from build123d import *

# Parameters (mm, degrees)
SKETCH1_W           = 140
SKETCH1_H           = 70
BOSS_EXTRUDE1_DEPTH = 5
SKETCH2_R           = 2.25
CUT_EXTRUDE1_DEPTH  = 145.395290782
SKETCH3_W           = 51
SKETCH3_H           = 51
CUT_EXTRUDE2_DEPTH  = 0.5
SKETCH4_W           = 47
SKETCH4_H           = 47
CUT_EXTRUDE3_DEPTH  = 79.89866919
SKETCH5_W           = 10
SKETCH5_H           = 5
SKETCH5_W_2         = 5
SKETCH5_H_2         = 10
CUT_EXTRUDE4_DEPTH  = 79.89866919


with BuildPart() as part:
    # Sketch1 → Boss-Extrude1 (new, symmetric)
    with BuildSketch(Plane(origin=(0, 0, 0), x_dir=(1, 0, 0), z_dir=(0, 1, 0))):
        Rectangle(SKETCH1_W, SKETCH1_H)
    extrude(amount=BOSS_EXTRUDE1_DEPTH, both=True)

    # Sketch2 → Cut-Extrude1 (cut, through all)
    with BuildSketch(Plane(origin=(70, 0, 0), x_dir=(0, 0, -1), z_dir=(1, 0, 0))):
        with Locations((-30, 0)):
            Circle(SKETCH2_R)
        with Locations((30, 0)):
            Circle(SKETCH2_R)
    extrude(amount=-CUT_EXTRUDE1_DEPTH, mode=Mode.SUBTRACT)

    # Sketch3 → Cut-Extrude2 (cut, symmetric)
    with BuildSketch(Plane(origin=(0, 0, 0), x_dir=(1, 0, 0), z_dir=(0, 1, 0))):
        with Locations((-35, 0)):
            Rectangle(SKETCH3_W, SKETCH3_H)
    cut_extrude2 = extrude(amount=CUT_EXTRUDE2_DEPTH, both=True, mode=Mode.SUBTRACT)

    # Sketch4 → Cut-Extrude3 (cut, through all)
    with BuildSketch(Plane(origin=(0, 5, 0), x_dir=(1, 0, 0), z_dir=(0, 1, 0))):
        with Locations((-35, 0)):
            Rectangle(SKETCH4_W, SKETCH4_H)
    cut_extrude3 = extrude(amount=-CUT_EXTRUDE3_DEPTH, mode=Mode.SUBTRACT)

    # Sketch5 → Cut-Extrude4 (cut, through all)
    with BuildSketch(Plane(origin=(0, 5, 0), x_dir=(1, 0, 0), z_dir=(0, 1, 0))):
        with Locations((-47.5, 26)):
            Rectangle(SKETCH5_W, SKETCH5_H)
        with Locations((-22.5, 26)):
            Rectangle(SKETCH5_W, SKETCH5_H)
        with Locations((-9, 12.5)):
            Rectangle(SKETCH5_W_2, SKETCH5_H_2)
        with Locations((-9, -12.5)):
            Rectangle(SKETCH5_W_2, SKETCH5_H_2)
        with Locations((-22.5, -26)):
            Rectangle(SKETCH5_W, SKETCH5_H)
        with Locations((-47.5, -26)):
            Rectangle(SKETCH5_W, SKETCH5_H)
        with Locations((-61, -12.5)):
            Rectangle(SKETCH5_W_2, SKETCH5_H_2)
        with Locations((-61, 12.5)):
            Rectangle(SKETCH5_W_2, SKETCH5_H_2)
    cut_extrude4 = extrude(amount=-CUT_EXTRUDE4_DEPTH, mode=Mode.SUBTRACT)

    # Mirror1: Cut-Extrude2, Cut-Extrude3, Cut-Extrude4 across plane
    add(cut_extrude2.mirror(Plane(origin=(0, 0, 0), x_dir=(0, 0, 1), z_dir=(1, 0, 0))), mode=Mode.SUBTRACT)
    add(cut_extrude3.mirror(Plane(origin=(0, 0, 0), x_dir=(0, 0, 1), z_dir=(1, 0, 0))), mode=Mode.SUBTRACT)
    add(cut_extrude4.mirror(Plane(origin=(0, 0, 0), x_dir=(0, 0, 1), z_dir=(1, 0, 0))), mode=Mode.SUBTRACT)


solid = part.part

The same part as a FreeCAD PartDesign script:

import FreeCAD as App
import Part
import Sketcher
from FreeCAD import Vector

doc = App.newDocument("Part")
body = doc.addObject("PartDesign::Body", "Body")

sketch1 = doc.addObject("Sketcher::SketchObject", "Sketch")
body.addObject(sketch1)
sketch1.AttachmentSupport = (doc.XZ_Plane, [""])
sketch1.MapMode = "FlatFace"
sketch1.addGeometry([
    Part.LineSegment(Vector(-70, -35, 0), Vector(-70, 35, 0)),
    Part.LineSegment(Vector(-70, 35, 0), Vector(70, 35, 0)),
    Part.LineSegment(Vector(70, 35, 0), Vector(70, -35, 0)),
    Part.LineSegment(Vector(70, -35, 0), Vector(-70, -35, 0)),
], False)
sketch1.addConstraint([
    Sketcher.Constraint("Coincident", 0, 2, 1, 1),
    Sketcher.Constraint("Coincident", 1, 2, 2, 1),
    Sketcher.Constraint("Coincident", 2, 2, 3, 1),
    Sketcher.Constraint("Coincident", 3, 2, 0, 1),
    Sketcher.Constraint("Vertical", 0),
    Sketcher.Constraint("Horizontal", 1),
    Sketcher.Constraint("Vertical", 2),
    Sketcher.Constraint("Horizontal", 3),
    Sketcher.Constraint("Symmetric", 0, 2, 2, 2, -1, 1),
    Sketcher.Constraint("DistanceX", 1, 1, 1, 2, 140.0),
    Sketcher.Constraint("DistanceY", 0, 1, 0, 2, 70.0),
])
pad1 = doc.addObject("PartDesign::Pad", "Pad")
body.addObject(pad1)
pad1.Profile = sketch1
pad1.Length = 10
pad1.Midplane = True

sketch2 = doc.addObject("Sketcher::SketchObject", "Sketch001")
body.addObject(sketch2)
sketch2.AttachmentSupport = (doc.YZ_Plane, [""])
sketch2.MapMode = "FlatFace"
sketch2.AttachmentOffset = App.Placement(Vector(0, 0, 70), App.Rotation())
sketch2.addGeometry([
    Part.Circle(Vector(0, 30, 0), Vector(0, 0, 1), 2.25),
    Part.Circle(Vector(0, -30, 0), Vector(0, 0, 1), 2.25),
], False)
sketch2.addConstraint([
    Sketcher.Constraint("Equal", 0, 1),
    Sketcher.Constraint("Symmetric", 0, 3, 1, 3, -1, 1),
    Sketcher.Constraint("PointOnObject", 0, 3, -2),
    Sketcher.Constraint("Diameter", 0, 4.5),
    Sketcher.Constraint("DistanceY", -1, 1, 0, 3, 30.0),
])
pocket1 = doc.addObject("PartDesign::Pocket", "Pocket")
body.addObject(pocket1)
pocket1.Profile = sketch2
pocket1.Type = "ThroughAll"

sketch3 = doc.addObject("Sketcher::SketchObject", "Sketch002")
body.addObject(sketch3)
sketch3.AttachmentSupport = (doc.XZ_Plane, [""])
sketch3.MapMode = "FlatFace"
sketch3.addGeometry([
    Part.LineSegment(Vector(-60.5, -25.5, 0), Vector(-60.5, 25.5, 0)),
    Part.LineSegment(Vector(-60.5, 25.5, 0), Vector(-9.5, 25.5, 0)),
    Part.LineSegment(Vector(-9.5, 25.5, 0), Vector(-9.5, -25.5, 0)),
    Part.LineSegment(Vector(-9.5, -25.5, 0), Vector(-60.5, -25.5, 0)),
], False)
sketch3.addConstraint([
    Sketcher.Constraint("Coincident", 0, 2, 1, 1),
    Sketcher.Constraint("Coincident", 1, 2, 2, 1),
    Sketcher.Constraint("Coincident", 2, 2, 3, 1),
    Sketcher.Constraint("Coincident", 3, 2, 0, 1),
    Sketcher.Constraint("Vertical", 0),
    Sketcher.Constraint("Horizontal", 1),
    Sketcher.Constraint("Vertical", 2),
    Sketcher.Constraint("Horizontal", 3),
    Sketcher.Constraint("Equal", 3, 0),
    Sketcher.Constraint("DistanceX", 1, 1, 1, 2, 51.0),
    Sketcher.Constraint("DistanceX", 0, 2, -1, 1, 60.5),
    Sketcher.Constraint("DistanceY", -1, 1, 0, 2, 25.5),
])
pocket2 = doc.addObject("PartDesign::Pocket", "Pocket001")
body.addObject(pocket2)
pocket2.Profile = sketch3
pocket2.Length = 1
pocket2.Midplane = True

sketch4 = doc.addObject("Sketcher::SketchObject", "Sketch003")
body.addObject(sketch4)
sketch4.AttachmentSupport = (doc.XZ_Plane, [""])
sketch4.MapMode = "FlatFace"
sketch4.AttachmentOffset = App.Placement(Vector(0, 0, -5), App.Rotation())
sketch4.addGeometry([
    Part.LineSegment(Vector(-58.5, -23.5, 0), Vector(-58.5, 23.5, 0)),
    Part.LineSegment(Vector(-58.5, 23.5, 0), Vector(-11.5, 23.5, 0)),
    Part.LineSegment(Vector(-11.5, 23.5, 0), Vector(-11.5, -23.5, 0)),
    Part.LineSegment(Vector(-11.5, -23.5, 0), Vector(-58.5, -23.5, 0)),
], False)
sketch4.addConstraint([
    Sketcher.Constraint("Coincident", 0, 2, 1, 1),
    Sketcher.Constraint("Coincident", 1, 2, 2, 1),
    Sketcher.Constraint("Coincident", 2, 2, 3, 1),
    Sketcher.Constraint("Coincident", 3, 2, 0, 1),
    Sketcher.Constraint("Vertical", 0),
    Sketcher.Constraint("Horizontal", 1),
    Sketcher.Constraint("Vertical", 2),
    Sketcher.Constraint("Horizontal", 3),
    Sketcher.Constraint("Equal", 3, 0),
    Sketcher.Constraint("DistanceX", 1, 1, 1, 2, 47.0),
    Sketcher.Constraint("DistanceX", 0, 2, -1, 1, 58.5),
    Sketcher.Constraint("DistanceY", -1, 1, 0, 2, 23.5),
])
pocket3 = doc.addObject("PartDesign::Pocket", "Pocket002")
body.addObject(pocket3)
pocket3.Profile = sketch4
pocket3.Type = "ThroughAll"
pocket3.Reversed = True

sketch5 = doc.addObject("Sketcher::SketchObject", "Sketch004")
body.addObject(sketch5)
sketch5.AttachmentSupport = (doc.XZ_Plane, [""])
sketch5.MapMode = "FlatFace"
sketch5.AttachmentOffset = App.Placement(Vector(0, 0, -5), App.Rotation())
sketch5.addGeometry([
    Part.LineSegment(Vector(-52.5, -28.5, 0), Vector(-52.5, -23.5, 0)),
    Part.LineSegment(Vector(-52.5, -23.5, 0), Vector(-42.5, -23.5, 0)),
    Part.LineSegment(Vector(-42.5, -23.5, 0), Vector(-42.5, -28.5, 0)),
    Part.LineSegment(Vector(-42.5, -28.5, 0), Vector(-52.5, -28.5, 0)),
    Part.LineSegment(Vector(-27.5, -28.5, 0), Vector(-27.5, -23.5, 0)),
    Part.LineSegment(Vector(-27.5, -23.5, 0), Vector(-17.5, -23.5, 0)),
    Part.LineSegment(Vector(-17.5, -23.5, 0), Vector(-17.5, -28.5, 0)),
    Part.LineSegment(Vector(-17.5, -28.5, 0), Vector(-27.5, -28.5, 0)),
    Part.LineSegment(Vector(-11.5, -17.5, 0), Vector(-11.5, -7.5, 0)),
    Part.LineSegment(Vector(-11.5, -7.5, 0), Vector(-6.5, -7.5, 0)),
    Part.LineSegment(Vector(-6.5, -7.5, 0), Vector(-6.5, -17.5, 0)),
    Part.LineSegment(Vector(-6.5, -17.5, 0), Vector(-11.5, -17.5, 0)),
    Part.LineSegment(Vector(-11.5, 7.5, 0), Vector(-11.5, 17.5, 0)),
    Part.LineSegment(Vector(-11.5, 17.5, 0), Vector(-6.5, 17.5, 0)),
    Part.LineSegment(Vector(-6.5, 17.5, 0), Vector(-6.5, 7.5, 0)),
    Part.LineSegment(Vector(-6.5, 7.5, 0), Vector(-11.5, 7.5, 0)),
    Part.LineSegment(Vector(-27.5, 23.5, 0), Vector(-27.5, 28.5, 0)),
    Part.LineSegment(Vector(-27.5, 28.5, 0), Vector(-17.5, 28.5, 0)),
    Part.LineSegment(Vector(-17.5, 28.5, 0), Vector(-17.5, 23.5, 0)),
    Part.LineSegment(Vector(-17.5, 23.5, 0), Vector(-27.5, 23.5, 0)),
    Part.LineSegment(Vector(-52.5, 23.5, 0), Vector(-52.5, 28.5, 0)),
    Part.LineSegment(Vector(-52.5, 28.5, 0), Vector(-42.5, 28.5, 0)),
    Part.LineSegment(Vector(-42.5, 28.5, 0), Vector(-42.5, 23.5, 0)),
    Part.LineSegment(Vector(-42.5, 23.5, 0), Vector(-52.5, 23.5, 0)),
    Part.LineSegment(Vector(-63.5, 7.5, 0), Vector(-63.5, 17.5, 0)),
    Part.LineSegment(Vector(-63.5, 17.5, 0), Vector(-58.5, 17.5, 0)),
    Part.LineSegment(Vector(-58.5, 17.5, 0), Vector(-58.5, 7.5, 0)),
    Part.LineSegment(Vector(-58.5, 7.5, 0), Vector(-63.5, 7.5, 0)),
    Part.LineSegment(Vector(-63.5, -17.5, 0), Vector(-63.5, -7.5, 0)),
    Part.LineSegment(Vector(-63.5, -7.5, 0), Vector(-58.5, -7.5, 0)),
    Part.LineSegment(Vector(-58.5, -7.5, 0), Vector(-58.5, -17.5, 0)),
    Part.LineSegment(Vector(-58.5, -17.5, 0), Vector(-63.5, -17.5, 0)),
], False)
sketch5.addConstraint([
    Sketcher.Constraint("Coincident", 0, 2, 1, 1),
    Sketcher.Constraint("Coincident", 1, 2, 2, 1),
    Sketcher.Constraint("Coincident", 2, 2, 3, 1),
    Sketcher.Constraint("Coincident", 3, 2, 0, 1),
    Sketcher.Constraint("Coincident", 4, 2, 5, 1),
    Sketcher.Constraint("Coincident", 5, 2, 6, 1),
    Sketcher.Constraint("Coincident", 6, 2, 7, 1),
    Sketcher.Constraint("Coincident", 7, 2, 4, 1),
    Sketcher.Constraint("Coincident", 8, 2, 9, 1),
    Sketcher.Constraint("Coincident", 9, 2, 10, 1),
    Sketcher.Constraint("Coincident", 10, 2, 11, 1),
    Sketcher.Constraint("Coincident", 11, 2, 8, 1),
    Sketcher.Constraint("Coincident", 12, 2, 13, 1),
    Sketcher.Constraint("Coincident", 13, 2, 14, 1),
    Sketcher.Constraint("Coincident", 14, 2, 15, 1),
    Sketcher.Constraint("Coincident", 15, 2, 12, 1),
    Sketcher.Constraint("Coincident", 16, 2, 17, 1),
    Sketcher.Constraint("Coincident", 17, 2, 18, 1),
    Sketcher.Constraint("Coincident", 18, 2, 19, 1),
    Sketcher.Constraint("Coincident", 19, 2, 16, 1),
    Sketcher.Constraint("Coincident", 20, 2, 21, 1),
    Sketcher.Constraint("Coincident", 21, 2, 22, 1),
    Sketcher.Constraint("Coincident", 22, 2, 23, 1),
    Sketcher.Constraint("Coincident", 23, 2, 20, 1),
    Sketcher.Constraint("Coincident", 24, 2, 25, 1),
    Sketcher.Constraint("Coincident", 25, 2, 26, 1),
    Sketcher.Constraint("Coincident", 26, 2, 27, 1),
    Sketcher.Constraint("Coincident", 27, 2, 24, 1),
    Sketcher.Constraint("Coincident", 28, 2, 29, 1),
    Sketcher.Constraint("Coincident", 29, 2, 30, 1),
    Sketcher.Constraint("Coincident", 30, 2, 31, 1),
    Sketcher.Constraint("Coincident", 31, 2, 28, 1),
    Sketcher.Constraint("Vertical", 0),
    Sketcher.Constraint("Horizontal", 1),
    Sketcher.Constraint("Vertical", 2),
    Sketcher.Constraint("Horizontal", 3),
    Sketcher.Constraint("Vertical", 4),
    Sketcher.Constraint("Horizontal", 5),
    Sketcher.Constraint("Vertical", 6),
    Sketcher.Constraint("Horizontal", 7),
    Sketcher.Constraint("Vertical", 8),
    Sketcher.Constraint("Horizontal", 9),
    Sketcher.Constraint("Vertical", 10),
    Sketcher.Constraint("Horizontal", 11),
    Sketcher.Constraint("Vertical", 12),
    Sketcher.Constraint("Horizontal", 13),
    Sketcher.Constraint("Vertical", 14),
    Sketcher.Constraint("Horizontal", 15),
    Sketcher.Constraint("Vertical", 16),
    Sketcher.Constraint("Horizontal", 17),
    Sketcher.Constraint("Vertical", 18),
    Sketcher.Constraint("Horizontal", 19),
    Sketcher.Constraint("Vertical", 20),
    Sketcher.Constraint("Horizontal", 21),
    Sketcher.Constraint("Vertical", 22),
    Sketcher.Constraint("Horizontal", 23),
    Sketcher.Constraint("Vertical", 24),
    Sketcher.Constraint("Horizontal", 25),
    Sketcher.Constraint("Vertical", 26),
    Sketcher.Constraint("Horizontal", 27),
    Sketcher.Constraint("Vertical", 28),
    Sketcher.Constraint("Horizontal", 29),
    Sketcher.Constraint("Vertical", 30),
    Sketcher.Constraint("Horizontal", 31),
    Sketcher.Constraint("Symmetric", 11, 2, 12, 2, -1),
    Sketcher.Constraint("Symmetric", 9, 2, 14, 2, -1),
    Sketcher.Constraint("Symmetric", 7, 2, 16, 2, -1),
    Sketcher.Constraint("Symmetric", 5, 2, 18, 2, -1),
    Sketcher.Constraint("Symmetric", 3, 2, 20, 2, -1),
    Sketcher.Constraint("Symmetric", 1, 2, 22, 2, -1),
    Sketcher.Constraint("Symmetric", 27, 2, 28, 2, -1),
    Sketcher.Constraint("Symmetric", 25, 2, 30, 2, -1),
    Sketcher.Constraint("Horizontal", 1, 2, 4, 2),
    Sketcher.Constraint("Horizontal", 3, 2, 6, 2),
    Sketcher.Constraint("Horizontal", 13, 2, 24, 2),
    Sketcher.Constraint("Horizontal", 15, 2, 26, 2),
    Sketcher.Constraint("Equal", 3, 5),
    Sketcher.Constraint("Equal", 15, 25),
    Sketcher.Constraint("Equal", 31, 0),
    Sketcher.Constraint("Equal", 23, 8),
    Sketcher.Constraint("DistanceX", 1, 1, 1, 2, 10.0),
    Sketcher.Constraint("DistanceX", 9, 1, 9, 2, 5.0),
    Sketcher.Constraint("DistanceX", 1, 2, 4, 2, 15.0),
    Sketcher.Constraint("DistanceX", 5, 2, 8, 2, 6.0),
    Sketcher.Constraint("DistanceY", 5, 2, 8, 2, 16.0),
    Sketcher.Constraint("DistanceY", 8, 2, 12, 2, 25.0),
    Sketcher.Constraint("DistanceX", 24, 2, 23, 2, 11.0),
    Sketcher.Constraint("DistanceX", 0, 2, -1, 1, 52.5),
])
pocket4 = doc.addObject("PartDesign::Pocket", "Pocket003")
body.addObject(pocket4)
pocket4.Profile = sketch5
pocket4.Type = "ThroughAll"
pocket4.Reversed = True
doc.recompute()

mirrored = doc.addObject("PartDesign::Mirrored", "Mirrored")
body.addObject(mirrored)
mirrored.Originals = [pocket2, pocket3, pocket4]
mirrored.MirrorPlane = (doc.YZ_Plane, [""])
body.Tip = mirrored

doc.recompute()
